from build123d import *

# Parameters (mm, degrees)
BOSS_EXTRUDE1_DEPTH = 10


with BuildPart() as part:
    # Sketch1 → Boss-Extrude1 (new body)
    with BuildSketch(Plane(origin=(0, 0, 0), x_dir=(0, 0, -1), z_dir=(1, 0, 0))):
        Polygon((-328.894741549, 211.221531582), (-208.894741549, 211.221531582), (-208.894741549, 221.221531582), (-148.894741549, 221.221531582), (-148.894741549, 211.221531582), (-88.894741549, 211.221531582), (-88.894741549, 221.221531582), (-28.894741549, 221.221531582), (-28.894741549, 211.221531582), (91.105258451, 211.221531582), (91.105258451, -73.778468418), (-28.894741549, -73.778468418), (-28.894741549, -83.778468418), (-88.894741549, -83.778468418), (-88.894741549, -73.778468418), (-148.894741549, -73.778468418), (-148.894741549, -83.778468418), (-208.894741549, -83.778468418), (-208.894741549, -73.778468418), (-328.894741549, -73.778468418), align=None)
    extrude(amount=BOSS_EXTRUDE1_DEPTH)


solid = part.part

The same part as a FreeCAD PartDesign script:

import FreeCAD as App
import Part
import Sketcher

V = App.Vector
Q = App.Units.Quantity

doc = App.newDocument("Part")
body = doc.addObject("PartDesign::Body", "Body")

sketch1 = body.newObject("Sketcher::SketchObject", "Sketch")
sketch1.AttachmentSupport = (doc.getObject("YZ_Plane"), [""])
sketch1.MapMode = "FlatFace"
sketch1.addGeometry([
    Part.LineSegment(V(211, 209, 0), V(211, 329, 0)),
    Part.LineSegment(V(211, 329, 0), V(-74, 329, 0)),
    Part.LineSegment(V(-74, 329, 0), V(-74, 209, 0)),
    Part.LineSegment(V(-74, 209, 0), V(-84, 209, 0)),
    Part.LineSegment(V(-84, 209, 0), V(-84, 149, 0)),
    Part.LineSegment(V(-84, 149, 0), V(-74, 149, 0)),
    Part.LineSegment(V(-74, 149, 0), V(-74, 89, 0)),
    Part.LineSegment(V(-74, 89, 0), V(-84, 89, 0)),
    Part.LineSegment(V(-84, 89, 0), V(-84, 29, 0)),
    Part.LineSegment(V(-84, 29, 0), V(-74, 29, 0)),
    Part.LineSegment(V(-74, 29, 0), V(-74, -91, 0)),
    Part.LineSegment(V(-74, -91, 0), V(211, -91, 0)),
    Part.LineSegment(V(211, -91, 0), V(211, 29, 0)),
    Part.LineSegment(V(211, 29, 0), V(221, 29, 0)),
    Part.LineSegment(V(221, 29, 0), V(221, 89, 0)),
    Part.LineSegment(V(221, 89, 0), V(211, 89, 0)),
    Part.LineSegment(V(211, 89, 0), V(211, 149, 0)),
    Part.LineSegment(V(211, 149, 0), V(221, 149, 0)),
    Part.LineSegment(V(221, 149, 0), V(221, 209, 0)),
    Part.LineSegment(V(221, 209, 0), V(211, 209, 0)),
], False)
sketch1.addConstraint([
    Sketcher.Constraint("Coincident", 0, 2, 1, 1),
    Sketcher.Constraint("Coincident", 1, 2, 2, 1),
    Sketcher.Constraint("Coincident", 2, 2, 3, 1),
    Sketcher.Constraint("Coincident", 3, 2, 4, 1),
    Sketcher.Constraint("Coincident", 4, 2, 5, 1),
    Sketcher.Constraint("Coincident", 5, 2, 6, 1),
    Sketcher.Constraint("Coincident", 6, 2, 7, 1),
    Sketcher.Constraint("Coincident", 7, 2, 8, 1),
    Sketcher.Constraint("Coincident", 8, 2, 9, 1),
    Sketcher.Constraint("Coincident", 9, 2, 10, 1),
    Sketcher.Constraint("Coincident", 10, 2, 11, 1),
    Sketcher.Constraint("Coincident", 11, 2, 12, 1),
    Sketcher.Constraint("Coincident", 12, 2, 13, 1),
    Sketcher.Constraint("Coincident", 13, 2, 14, 1),
    Sketcher.Constraint("Coincident", 14, 2, 15, 1),
    Sketcher.Constraint("Coincident", 15, 2, 16, 1),
    Sketcher.Constraint("Coincident", 16, 2, 17, 1),
    Sketcher.Constraint("Coincident", 17, 2, 18, 1),
    Sketcher.Constraint("Coincident", 18, 2, 19, 1),
    Sketcher.Constraint("Coincident", 19, 2, 0, 1),
    Sketcher.Constraint("Vertical", 0),
    Sketcher.Constraint("Horizontal", 1),
    Sketcher.Constraint("Vertical", 2),
    Sketcher.Constraint("Horizontal", 3),
    Sketcher.Constraint("Vertical", 4),
    Sketcher.Constraint("Horizontal", 5),
    Sketcher.Constraint("Vertical", 6),
    Sketcher.Constraint("Horizontal", 7),
    Sketcher.Constraint("Vertical", 8),
    Sketcher.Constraint("Horizontal", 9),
    Sketcher.Constraint("Vertical", 10),
    Sketcher.Constraint("Horizontal", 11),
    Sketcher.Constraint("Vertical", 12),
    Sketcher.Constraint("Horizontal", 13),
    Sketcher.Constraint("Vertical", 14),
    Sketcher.Constraint("Horizontal", 15),
    Sketcher.Constraint("Vertical", 16),
    Sketcher.Constraint("Horizontal", 17),
    Sketcher.Constraint("Vertical", 18),
    Sketcher.Constraint("Horizontal", 19),
    Sketcher.Constraint("Horizontal", 9, 2, 12, 2),
    Sketcher.Constraint("Horizontal", 7, 2, 14, 2),
    Sketcher.Constraint("Horizontal", 5, 2, 16, 2),
    Sketcher.Constraint("Horizontal", 3, 2, 18, 2),
    Sketcher.Constraint("Vertical", 2, 2, 5, 2),
    Sketcher.Constraint("Vertical", 4, 2, 7, 2),
    Sketcher.Constraint("Vertical", 6, 2, 9, 2),
    Sketcher.Constraint("Vertical", 0, 2, 11, 2),
    Sketcher.Constraint("Vertical", 12, 2, 15, 2),
    Sketcher.Constraint("Vertical", 14, 2, 17, 2),
    Sketcher.Constraint("Equal", 9, 13),
    Sketcher.Constraint("Equal", 4, 6),
    Sketcher.Constraint("Equal", 6, 8),
    Sketcher.Constraint("Equal", 2, 10),
    Sketcher.Constraint("DistanceX", 1, 2, 1, 1, Q("285 mm")),
    Sketcher.Constraint("DistanceX", 3, 2, 3, 1, Q("10 mm")),
    Sketcher.Constraint("DistanceY", 0, 1, 0, 2, Q("120 mm")),
    Sketcher.Constraint("DistanceY", 4, 2, 4, 1, Q("60 mm")),
    Sketcher.Constraint("DistanceX", -1, 1, 0, 2, Q("211.221532 mm")),
    Sketcher.Constraint("DistanceY", -1, 1, 0, 2, Q("328.894742 mm")),
])
pad1 = body.newObject("PartDesign::Pad", "Pad")
pad1.Profile = sketch1
pad1.Length = 10

doc.recompute()
